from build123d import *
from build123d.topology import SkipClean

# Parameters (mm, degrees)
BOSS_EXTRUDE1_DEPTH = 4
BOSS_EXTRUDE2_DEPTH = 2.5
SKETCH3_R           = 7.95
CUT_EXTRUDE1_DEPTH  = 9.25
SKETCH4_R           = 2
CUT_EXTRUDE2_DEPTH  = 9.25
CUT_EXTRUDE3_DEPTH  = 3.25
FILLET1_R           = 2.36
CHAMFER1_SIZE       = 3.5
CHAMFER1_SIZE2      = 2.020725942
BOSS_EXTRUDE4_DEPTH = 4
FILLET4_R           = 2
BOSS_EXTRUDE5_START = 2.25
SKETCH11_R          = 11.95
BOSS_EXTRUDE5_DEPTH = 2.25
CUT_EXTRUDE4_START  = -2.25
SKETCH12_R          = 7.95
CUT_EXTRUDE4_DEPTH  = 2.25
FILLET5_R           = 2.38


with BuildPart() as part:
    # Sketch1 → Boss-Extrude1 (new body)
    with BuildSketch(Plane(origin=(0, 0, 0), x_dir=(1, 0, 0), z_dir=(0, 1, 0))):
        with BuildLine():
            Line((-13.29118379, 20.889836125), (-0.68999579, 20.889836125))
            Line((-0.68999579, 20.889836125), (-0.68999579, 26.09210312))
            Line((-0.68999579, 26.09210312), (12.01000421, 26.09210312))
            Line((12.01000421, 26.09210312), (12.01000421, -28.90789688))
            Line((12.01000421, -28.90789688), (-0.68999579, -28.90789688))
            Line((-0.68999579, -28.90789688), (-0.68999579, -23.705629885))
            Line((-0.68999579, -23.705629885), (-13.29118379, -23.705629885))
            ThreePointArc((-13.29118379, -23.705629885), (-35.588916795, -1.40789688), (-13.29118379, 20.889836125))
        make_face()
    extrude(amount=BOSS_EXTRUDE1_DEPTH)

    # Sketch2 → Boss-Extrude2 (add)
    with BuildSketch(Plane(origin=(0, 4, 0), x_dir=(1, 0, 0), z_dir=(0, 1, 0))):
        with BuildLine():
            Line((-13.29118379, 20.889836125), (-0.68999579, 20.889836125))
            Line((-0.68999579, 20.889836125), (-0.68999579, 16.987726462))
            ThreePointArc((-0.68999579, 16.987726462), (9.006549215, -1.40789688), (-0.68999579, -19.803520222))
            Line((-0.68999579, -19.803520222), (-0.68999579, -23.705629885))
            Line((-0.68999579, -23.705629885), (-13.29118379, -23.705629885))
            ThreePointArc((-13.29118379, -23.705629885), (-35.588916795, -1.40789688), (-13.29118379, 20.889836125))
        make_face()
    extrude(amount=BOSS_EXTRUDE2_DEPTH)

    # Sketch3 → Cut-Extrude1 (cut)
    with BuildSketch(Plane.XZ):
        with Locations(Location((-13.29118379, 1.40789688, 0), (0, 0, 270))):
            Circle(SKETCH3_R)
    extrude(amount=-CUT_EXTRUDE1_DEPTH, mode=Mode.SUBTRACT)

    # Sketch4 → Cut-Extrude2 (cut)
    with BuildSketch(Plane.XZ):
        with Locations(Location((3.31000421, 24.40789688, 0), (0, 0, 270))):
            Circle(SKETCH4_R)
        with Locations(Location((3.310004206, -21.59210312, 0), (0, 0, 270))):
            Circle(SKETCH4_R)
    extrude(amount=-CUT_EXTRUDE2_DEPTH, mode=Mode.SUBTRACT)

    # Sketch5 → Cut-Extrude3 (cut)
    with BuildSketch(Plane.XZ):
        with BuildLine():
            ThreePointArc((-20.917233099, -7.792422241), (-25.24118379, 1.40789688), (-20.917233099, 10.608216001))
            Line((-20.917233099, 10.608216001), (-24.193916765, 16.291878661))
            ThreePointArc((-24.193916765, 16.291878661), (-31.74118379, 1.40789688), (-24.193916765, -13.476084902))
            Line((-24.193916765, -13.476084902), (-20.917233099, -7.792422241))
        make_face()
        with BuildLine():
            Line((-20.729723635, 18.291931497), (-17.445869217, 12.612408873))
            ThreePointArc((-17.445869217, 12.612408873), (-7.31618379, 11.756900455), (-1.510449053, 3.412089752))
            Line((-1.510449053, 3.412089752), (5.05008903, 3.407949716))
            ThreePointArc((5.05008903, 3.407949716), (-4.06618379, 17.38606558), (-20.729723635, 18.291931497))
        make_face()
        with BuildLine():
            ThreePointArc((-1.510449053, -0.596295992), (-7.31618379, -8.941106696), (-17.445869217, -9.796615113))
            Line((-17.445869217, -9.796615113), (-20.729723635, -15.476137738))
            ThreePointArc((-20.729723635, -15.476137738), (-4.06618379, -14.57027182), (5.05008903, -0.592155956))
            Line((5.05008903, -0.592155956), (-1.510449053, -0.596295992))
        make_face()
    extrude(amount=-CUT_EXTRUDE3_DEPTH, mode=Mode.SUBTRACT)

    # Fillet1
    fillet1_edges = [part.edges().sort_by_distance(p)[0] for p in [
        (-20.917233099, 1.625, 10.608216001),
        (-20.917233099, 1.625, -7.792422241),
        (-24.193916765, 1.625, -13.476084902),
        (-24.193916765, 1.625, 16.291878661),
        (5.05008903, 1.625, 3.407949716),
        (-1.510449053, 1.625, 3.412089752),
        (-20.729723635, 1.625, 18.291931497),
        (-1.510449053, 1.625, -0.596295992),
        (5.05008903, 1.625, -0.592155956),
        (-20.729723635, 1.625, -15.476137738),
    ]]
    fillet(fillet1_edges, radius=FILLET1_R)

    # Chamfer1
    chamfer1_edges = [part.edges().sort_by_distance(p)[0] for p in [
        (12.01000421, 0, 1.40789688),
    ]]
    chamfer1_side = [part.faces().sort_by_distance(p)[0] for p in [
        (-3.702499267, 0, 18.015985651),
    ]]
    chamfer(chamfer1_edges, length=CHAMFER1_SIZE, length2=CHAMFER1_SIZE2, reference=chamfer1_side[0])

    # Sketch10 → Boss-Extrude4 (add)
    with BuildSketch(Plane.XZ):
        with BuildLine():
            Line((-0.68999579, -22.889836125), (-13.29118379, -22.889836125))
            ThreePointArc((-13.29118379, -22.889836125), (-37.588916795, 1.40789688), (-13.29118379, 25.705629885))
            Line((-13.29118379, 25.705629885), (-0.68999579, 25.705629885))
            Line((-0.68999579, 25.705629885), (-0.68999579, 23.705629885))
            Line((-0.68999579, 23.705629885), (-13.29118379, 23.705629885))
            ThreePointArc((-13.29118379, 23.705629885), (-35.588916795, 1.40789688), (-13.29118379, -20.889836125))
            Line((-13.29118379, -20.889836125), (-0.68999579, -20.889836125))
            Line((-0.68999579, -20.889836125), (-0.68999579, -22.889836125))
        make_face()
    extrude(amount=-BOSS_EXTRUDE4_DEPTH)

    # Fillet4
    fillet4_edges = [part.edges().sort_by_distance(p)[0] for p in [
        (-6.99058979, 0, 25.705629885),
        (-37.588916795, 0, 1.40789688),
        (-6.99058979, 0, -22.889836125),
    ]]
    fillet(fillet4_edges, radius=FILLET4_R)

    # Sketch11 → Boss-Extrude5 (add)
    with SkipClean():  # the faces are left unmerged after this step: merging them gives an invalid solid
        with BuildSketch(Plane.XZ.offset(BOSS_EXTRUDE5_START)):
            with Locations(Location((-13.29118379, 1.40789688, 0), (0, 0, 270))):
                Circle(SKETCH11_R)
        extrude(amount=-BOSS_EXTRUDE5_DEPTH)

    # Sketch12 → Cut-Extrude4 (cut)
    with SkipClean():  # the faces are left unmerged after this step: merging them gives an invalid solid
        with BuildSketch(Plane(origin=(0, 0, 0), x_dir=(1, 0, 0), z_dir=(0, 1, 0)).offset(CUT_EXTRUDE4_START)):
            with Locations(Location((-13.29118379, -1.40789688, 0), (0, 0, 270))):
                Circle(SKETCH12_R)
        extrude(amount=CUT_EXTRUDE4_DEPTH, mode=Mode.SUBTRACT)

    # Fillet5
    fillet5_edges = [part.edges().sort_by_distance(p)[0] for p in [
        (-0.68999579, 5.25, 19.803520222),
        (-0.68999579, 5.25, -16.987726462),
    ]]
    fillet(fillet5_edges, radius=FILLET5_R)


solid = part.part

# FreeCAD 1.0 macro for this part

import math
import FreeCAD as App
import Part
import Sketcher


def edges_at(feature, points):
    """Names of the edges that pass closest to the given points."""
    edges = feature.Shape.Edges
    near = lambda p: min(range(len(edges)), key=lambda i: edges[i].distToShape(Part.Vertex(*p))[0])
    return sorted({f"Edge{near(p) + 1}" for p in points})

doc = App.newDocument("Part")
body = doc.addObject("PartDesign::Body", "Body")

# Sketch on XZ plane
sketch1 = body.newObject("Sketcher::SketchObject", "Sketch")
sketch1.AttachmentSupport = (doc.getObject("XZ_Plane"), [""])
sketch1.MapMode = "FlatFace"
sketch1.addGeometry([
    Part.LineSegment(App.Vector(-1, -21, 0), App.Vector(-13, -21, 0)),  # 0
    Part.ArcOfCircle(Part.Circle(App.Vector(-13, 1, 0), App.Vector(0, 0, 1), 22), math.radians(90), math.radians(270)),  # 1
    Part.LineSegment(App.Vector(-13, 24, 0), App.Vector(-1, 24, 0)),  # 2
    Part.LineSegment(App.Vector(-1, 24, 0), App.Vector(-1, 29, 0)),  # 3
    Part.LineSegment(App.Vector(-1, 29, 0), App.Vector(12, 29, 0)),  # 4
    Part.LineSegment(App.Vector(12, 29, 0), App.Vector(12, -26, 0)),  # 5
    Part.LineSegment(App.Vector(12, -26, 0), App.Vector(-1, -26, 0)),  # 6
    Part.LineSegment(App.Vector(-1, -26, 0), App.Vector(-1, -21, 0)),  # 7
], False)
sketch1.addConstraint([
    Sketcher.Constraint("Tangent", 0, 2, 1, 2),
    Sketcher.Constraint("Tangent", 1, 1, 2, 1),
    Sketcher.Constraint("Coincident", 2, 2, 3, 1),
    Sketcher.Constraint("Coincident", 3, 2, 4, 1),
    Sketcher.Constraint("Coincident", 4, 2, 5, 1),
    Sketcher.Constraint("Coincident", 5, 2, 6, 1),
    Sketcher.Constraint("Coincident", 6, 2, 7, 1),
    Sketcher.Constraint("Coincident", 7, 2, 0, 1),
    Sketcher.Constraint("Horizontal", 0),
    Sketcher.Constraint("Horizontal", 2),
    Sketcher.Constraint("Vertical", 3),
    Sketcher.Constraint("Horizontal", 4),
    Sketcher.Constraint("Vertical", 5),
    Sketcher.Constraint("Horizontal", 6),
    Sketcher.Constraint("Vertical", 7),
    Sketcher.Constraint("Vertical", 3, 2, 6, 2),
    Sketcher.Constraint("Equal", 3, 7),
    Sketcher.Constraint("DistanceY", 5, 2, 5, 1, 55.0),
    Sketcher.Constraint("DistanceX", 4, 1, 4, 2, 12.7),
    Sketcher.Constraint("Radius", 1, 22.297733),
    Sketcher.Constraint("DistanceX", 0, 2, 0, 1, 12.601188),
    Sketcher.Constraint("DistanceY", -1, 1, 1, 1, 23.70563),
    Sketcher.Constraint("DistanceX", 1, 3, -1, 1, 13.291184),
])
pad1 = body.newObject("PartDesign::Pad", "Pad")
pad1.Profile = sketch1
pad1.Length = 4
pad1.Reversed = True

# Sketch on XZ plane
sketch2 = body.newObject("Sketcher::SketchObject", "Sketch001")
sketch2.AttachmentSupport = (doc.getObject("XZ_Plane"), [""])
sketch2.MapMode = "FlatFace"
sketch2.AttachmentOffset = App.Placement(App.Vector(0, 0, -4), App.Rotation())
sketch2.addGeometry([
    Part.LineSegment(App.Vector(-0.7, -20.9, 0), App.Vector(-13.3, -20.9, 0)),  # 0
    Part.ArcOfCircle(Part.Circle(App.Vector(-13.3, 1.4, 0), App.Vector(0, 0, 1), 22.3), math.radians(90), math.radians(270)),  # 1
    Part.LineSegment(App.Vector(-13.3, 23.7, 0), App.Vector(-0.7, 23.7, 0)),  # 2
    Part.LineSegment(App.Vector(-0.7, 23.7, 0), App.Vector(-0.7, 19.8, 0)),  # 3
    Part.ArcOfCircle(Part.Circle(App.Vector(-13.3, 1.4, 0), App.Vector(0, 0, 1), 22.3), math.radians(-56), math.radians(56)),  # 4
    Part.LineSegment(App.Vector(-0.7, -17, 0), App.Vector(-0.7, -20.9, 0)),  # 5
], False)
sketch2.addConstraint([
    Sketcher.Constraint("Tangent", 0, 2, 1, 2),
    Sketcher.Constraint("Tangent", 1, 1, 2, 1),
    Sketcher.Constraint("Coincident", 2, 2, 3, 1),
    Sketcher.Constraint("Coincident", 3, 2, 4, 2),
    Sketcher.Constraint("Coincident", 4, 1, 5, 1),
    Sketcher.Constraint("Coincident", 5, 2, 0, 1),
    Sketcher.Constraint("Horizontal", 0),
    Sketcher.Constraint("Horizontal", 2),
    Sketcher.Constraint("Vertical", 3),
    Sketcher.Constraint("Vertical", 5),
    Sketcher.Constraint("Coincident", 4, 3, 1, 3),
    Sketcher.Constraint("Equal", 1, 4),
    Sketcher.Constraint("Vertical", 3, 2, 4, 1),
    Sketcher.Constraint("Radius", 1, 22.297733),
    Sketcher.Constraint("DistanceY", 3, 2, 3, 1, 3.90211),
    Sketcher.Constraint("DistanceY", -1, 1, 1, 1, 23.70563),
    Sketcher.Constraint("DistanceX", 1, 3, -1, 1, 13.291184),
])
pad2 = body.newObject("PartDesign::Pad", "Pad001")
pad2.Profile = sketch2
pad2.Length = 2.5
pad2.Reversed = True

# Sketch on XZ plane
sketch3 = body.newObject("Sketcher::SketchObject", "Sketch002")
sketch3.AttachmentSupport = (doc.getObject("XZ_Plane"), [""])
sketch3.MapMode = "FlatFace"
sketch3.addGeometry(Part.Circle(App.Vector(-13, 1, 0), App.Vector(0, 0, 1), 8), False)
sketch3.addConstraint([
    Sketcher.Constraint("Diameter", 0, 15.9),
    Sketcher.Constraint("DistanceX", 0, 3, -1, 1, 13.291184),
    Sketcher.Constraint("DistanceY", -1, 1, 0, 3, 1.407897),
])
pocket1 = body.newObject("PartDesign::Pocket", "Pocket")
pocket1.Profile = sketch3
pocket1.Length = 9.25

# Sketch on XZ plane
sketch4 = body.newObject("Sketcher::SketchObject", "Sketch003")
sketch4.AttachmentSupport = (doc.getObject("XZ_Plane"), [""])
sketch4.MapMode = "FlatFace"
sketch4.addGeometry([
    Part.Circle(App.Vector(3.3, 24.4, 0), App.Vector(0, 0, 1), 2),
    Part.Circle(App.Vector(3.3, -21.6, 0), App.Vector(0, 0, 1), 2),
], False)
sketch4.addConstraint([
    Sketcher.Constraint("Equal", 0, 1),
    Sketcher.Constraint("Vertical", 0, 3, 1, 3),
    Sketcher.Constraint("Diameter", 0, 4.0),
    Sketcher.Constraint("DistanceY", 1, 3, 0, 3, 46.0),
    Sketcher.Constraint("DistanceX", -1, 1, 0, 3, 3.310004),
    Sketcher.Constraint("DistanceY", -1, 1, 0, 3, 24.407897),
])
pocket2 = body.newObject("PartDesign::Pocket", "Pocket001")
pocket2.Profile = sketch4
pocket2.Length = 9.25

# Sketch on XZ plane
sketch5 = body.newObject("Sketcher::SketchObject", "Sketch004")
sketch5.AttachmentSupport = (doc.getObject("XZ_Plane"), [""])
sketch5.MapMode = "FlatFace"
sketch5.addGeometry([
    Part.ArcOfCircle(Part.Circle(App.Vector(-13, 1, 0), App.Vector(0, 0, 1), 12), math.radians(130), math.radians(230)),  # 0
    Part.LineSegment(App.Vector(-21, 11, 0), App.Vector(-24, 16, 0)),  # 1
    Part.ArcOfCircle(Part.Circle(App.Vector(-13, 1, 0), App.Vector(0, 0, 1), 18), math.radians(126), math.radians(234)),  # 2
    Part.LineSegment(App.Vector(-24, -13, 0), App.Vector(-21, -8, 0)),  # 3
    Part.LineSegment(App.Vector(-21, 18, 0), App.Vector(-17, 13, 0)),  # 4
    Part.ArcOfCircle(Part.Circle(App.Vector(-13, 1, 0), App.Vector(0, 0, 1), 12), math.radians(10), math.radians(110)),  # 5
    Part.LineSegment(App.Vector(-2, 3, 0), App.Vector(5, 3, 0)),  # 6
    Part.ArcOfCircle(Part.Circle(App.Vector(-13, 1, 0), App.Vector(0, 0, 1), 18), math.radians(6), math.radians(114)),  # 7
    Part.ArcOfCircle(Part.Circle(App.Vector(-13, 1, 0), App.Vector(0, 0, 1), 12), math.radians(-110), math.radians(-10)),  # 8
    Part.LineSegment(App.Vector(-17, -10, 0), App.Vector(-21, -15, 0)),  # 9
    Part.ArcOfCircle(Part.Circle(App.Vector(-13, 1, 0), App.Vector(0, 0, 1), 18), math.radians(-114), math.radians(-6)),  # 10
    Part.LineSegment(App.Vector(5, -1, 0), App.Vector(-2, -1, 0)),  # 11
], False)
sketch5.addConstraint([
    Sketcher.Constraint("Coincident", 0, 1, 1, 1),
    Sketcher.Constraint("Coincident", 1, 2, 2, 1),
    Sketcher.Constraint("Coincident", 2, 2, 3, 1),
    Sketcher.Constraint("Coincident", 3, 2, 0, 2),
    Sketcher.Constraint("Coincident", 4, 2, 5, 2),
    Sketcher.Constraint("Coincident", 5, 1, 6, 1),
    Sketcher.Constraint("Coincident", 6, 2, 7, 1),
    Sketcher.Constraint("Coincident", 7, 2, 4, 1),
    Sketcher.Constraint("Coincident", 8, 1, 9, 1),
    Sketcher.Constraint("Coincident", 9, 2, 10, 1),
    Sketcher.Constraint("Coincident", 10, 2, 11, 1),
    Sketcher.Constraint("Coincident", 11, 2, 8, 2),
    Sketcher.Constraint("Coincident", 2, 3, 0, 3),
    Sketcher.Constraint("Coincident", 5, 3, 0, 3),
    Sketcher.Constraint("Coincident", 7, 3, 0, 3),
    Sketcher.Constraint("Coincident", 8, 3, 0, 3),
    Sketcher.Constraint("Coincident", 10, 3, 0, 3),
    Sketcher.Constraint("Equal", 0, 5),
    Sketcher.Constraint("Equal", 2, 7),
    Sketcher.Constraint("Equal", 5, 8),
    Sketcher.Constraint("Equal", 7, 10),
    Sketcher.Constraint("Vertical", 1, 2, 2, 2),
    Sketcher.Constraint("Vertical", 0, 1, 3, 2),
    Sketcher.Constraint("Vertical", 4, 2, 8, 1),
    Sketcher.Constraint("Vertical", 7, 2, 9, 2),
    Sketcher.Constraint("Vertical", 6, 2, 10, 2),
    Sketcher.Constraint("Vertical", 5, 1, 11, 2),
    Sketcher.Constraint("Equal", 3, 4),
    Sketcher.Constraint("Equal", 4, 6),
    Sketcher.Constraint("Radius", 0, 11.95),
    Sketcher.Constraint("Radius", 2, 18.45),
    Sketcher.Constraint("Distance", 1, 6.560539),
    Sketcher.Constraint("DistanceY", -1, 1, 1, 2, 16.291879),
    Sketcher.Constraint("DistanceX", 4, 2, -1, 1, 17.445869),
    Sketcher.Constraint("DistanceY", -1, 1, 4, 2, 12.612409),
    Sketcher.Constraint("DistanceX", 5, 1, -1, 1, 1.510449),
    Sketcher.Constraint("DistanceY", -1, 1, 5, 1, 3.41209),
])
pocket3 = body.newObject("PartDesign::Pocket", "Pocket002")
pocket3.Profile = sketch5
pocket3.Length = 3.25
doc.recompute()

fillet = body.newObject("PartDesign::Fillet", "Fillet")
fillet.Base = (pocket3, edges_at(pocket3, [
    (-20.917, 1.625, 10.608),
    (-20.917, 1.625, -7.792),
    (-24.194, 1.625, -13.476),
    (-24.194, 1.625, 16.292),
    (5.05, 1.625, 3.408),
    (-1.51, 1.625, 3.412),
    (-20.73, 1.625, 18.292),
    (-1.51, 1.625, -0.596),
    (5.05, 1.625, -0.592),
    (-20.73, 1.625, -15.476),
]))
fillet.Radius = 2.36
doc.recompute()

chamfer = body.newObject("PartDesign::Chamfer", "Chamfer")
chamfer.Base = (fillet, edges_at(fillet, [(12.01, 0, 1.408)]))
chamfer.ChamferType = "Two distances"
chamfer.Size = 3.5
chamfer.Size2 = 2.020726

# Sketch on XZ plane
sketch6 = body.newObject("Sketcher::SketchObject", "Sketch005")
sketch6.AttachmentSupport = (doc.getObject("XZ_Plane"), [""])
sketch6.MapMode = "FlatFace"
sketch6.addGeometry([
    Part.LineSegment(App.Vector(-13.3, -22.9, 0), App.Vector(-0.7, -22.9, 0)),  # 0
    Part.LineSegment(App.Vector(-0.7, -22.9, 0), App.Vector(-0.7, -20.9, 0)),  # 1
    Part.LineSegment(App.Vector(-0.7, -20.9, 0), App.Vector(-13.3, -20.9, 0)),  # 2
    Part.ArcOfCircle(Part.Circle(App.Vector(-13.3, 1.4, 0), App.Vector(0, 0, 1), 22.3), math.radians(90), math.radians(270)),  # 3
    Part.LineSegment(App.Vector(-13.3, 23.7, 0), App.Vector(-0.7, 23.7, 0)),  # 4
    Part.LineSegment(App.Vector(-0.7, 23.7, 0), App.Vector(-0.7, 25.7, 0)),  # 5
    Part.LineSegment(App.Vector(-0.7, 25.7, 0), App.Vector(-13.3, 25.7, 0)),  # 6
    Part.ArcOfCircle(Part.Circle(App.Vector(-13.3, 1.4, 0), App.Vector(0, 0, 1), 24.3), math.radians(90), math.radians(270)),  # 7
], False)
sketch6.addConstraint([
    Sketcher.Constraint("Coincident", 0, 2, 1, 1),
    Sketcher.Constraint("Coincident", 1, 2, 2, 1),
    Sketcher.Constraint("Tangent", 2, 2, 3, 2),
    Sketcher.Constraint("Tangent", 3, 1, 4, 1),
    Sketcher.Constraint("Coincident", 4, 2, 5, 1),
    Sketcher.Constraint("Coincident", 5, 2, 6, 1),
    Sketcher.Constraint("Tangent", 6, 2, 7, 1),
    Sketcher.Constraint("Tangent", 7, 2, 0, 1),
    Sketcher.Constraint("Horizontal", 0),
    Sketcher.Constraint("Vertical", 1),
    Sketcher.Constraint("Horizontal", 2),
    Sketcher.Constraint("Horizontal", 4),
    Sketcher.Constraint("Vertical", 5),
    Sketcher.Constraint("Horizontal", 6),
    Sketcher.Constraint("Coincident", 7, 3, 3, 3),
    Sketcher.Constraint("Vertical", 1, 2, 4, 2),
    Sketcher.Constraint("DistanceY", 1, 1, 1, 2, 2.0),
    Sketcher.Constraint("Radius", 3, 22.297733),
    Sketcher.Constraint("DistanceX", 0, 1, 0, 2, 12.601188),
    Sketcher.Constraint("DistanceY", -1, 1, 3, 1, 23.70563),
    Sketcher.Constraint("DistanceX", 3, 3, -1, 1, 13.291184),
])
pad3 = body.newObject("PartDesign::Pad", "Pad002")
pad3.Profile = sketch6
pad3.Length = 4
pad3.Reversed = True
doc.recompute()

fillet2 = body.newObject("PartDesign::Fillet", "Fillet001")
fillet2.Base = (pad3, edges_at(pad3, [(-6.991, 0, 25.706), (-37.589, 0, 1.408), (-6.991, 0, -22.89)]))
fillet2.Radius = 2

# Sketch on XZ plane
sketch7 = body.newObject("Sketcher::SketchObject", "Sketch006")
sketch7.AttachmentSupport = (doc.getObject("XZ_Plane"), [""])
sketch7.MapMode = "FlatFace"
sketch7.AttachmentOffset = App.Placement(App.Vector(0, 0, 2.25), App.Rotation())
sketch7.addGeometry(Part.Circle(App.Vector(-13, 1, 0), App.Vector(0, 0, 1), 12), False)
sketch7.addConstraint([
    Sketcher.Constraint("Diameter", 0, 23.9),
    Sketcher.Constraint("DistanceX", 0, 3, -1, 1, 13.291184),
    Sketcher.Constraint("DistanceY", -1, 1, 0, 3, 1.407897),
])
pad4 = body.newObject("PartDesign::Pad", "Pad003")
pad4.Profile = sketch7
pad4.Length = 2.25
pad4.Reversed = True

# Sketch on XZ plane
sketch8 = body.newObject("Sketcher::SketchObject", "Sketch007")
sketch8.AttachmentSupport = (doc.getObject("XZ_Plane"), [""])
sketch8.MapMode = "FlatFace"
sketch8.AttachmentOffset = App.Placement(App.Vector(0, 0, 2.25), App.Rotation())
sketch8.addGeometry(Part.Circle(App.Vector(-13, 1, 0), App.Vector(0, 0, 1), 8), False)
sketch8.addConstraint([
    Sketcher.Constraint("Diameter", 0, 15.9),
    Sketcher.Constraint("DistanceX", 0, 3, -1, 1, 13.291184),
    Sketcher.Constraint("DistanceY", -1, 1, 0, 3, 1.407897),
])
pocket4 = body.newObject("PartDesign::Pocket", "Pocket003")
pocket4.Profile = sketch8
pocket4.Length = 2.25
doc.recompute()

fillet3 = body.newObject("PartDesign::Fillet", "Fillet002")
fillet3.Base = (pocket4, edges_at(pocket4, [(-0.69, 5.25, 19.804), (-0.69, 5.25, -16.988)]))
fillet3.Radius = 2.38

doc.recompute()
